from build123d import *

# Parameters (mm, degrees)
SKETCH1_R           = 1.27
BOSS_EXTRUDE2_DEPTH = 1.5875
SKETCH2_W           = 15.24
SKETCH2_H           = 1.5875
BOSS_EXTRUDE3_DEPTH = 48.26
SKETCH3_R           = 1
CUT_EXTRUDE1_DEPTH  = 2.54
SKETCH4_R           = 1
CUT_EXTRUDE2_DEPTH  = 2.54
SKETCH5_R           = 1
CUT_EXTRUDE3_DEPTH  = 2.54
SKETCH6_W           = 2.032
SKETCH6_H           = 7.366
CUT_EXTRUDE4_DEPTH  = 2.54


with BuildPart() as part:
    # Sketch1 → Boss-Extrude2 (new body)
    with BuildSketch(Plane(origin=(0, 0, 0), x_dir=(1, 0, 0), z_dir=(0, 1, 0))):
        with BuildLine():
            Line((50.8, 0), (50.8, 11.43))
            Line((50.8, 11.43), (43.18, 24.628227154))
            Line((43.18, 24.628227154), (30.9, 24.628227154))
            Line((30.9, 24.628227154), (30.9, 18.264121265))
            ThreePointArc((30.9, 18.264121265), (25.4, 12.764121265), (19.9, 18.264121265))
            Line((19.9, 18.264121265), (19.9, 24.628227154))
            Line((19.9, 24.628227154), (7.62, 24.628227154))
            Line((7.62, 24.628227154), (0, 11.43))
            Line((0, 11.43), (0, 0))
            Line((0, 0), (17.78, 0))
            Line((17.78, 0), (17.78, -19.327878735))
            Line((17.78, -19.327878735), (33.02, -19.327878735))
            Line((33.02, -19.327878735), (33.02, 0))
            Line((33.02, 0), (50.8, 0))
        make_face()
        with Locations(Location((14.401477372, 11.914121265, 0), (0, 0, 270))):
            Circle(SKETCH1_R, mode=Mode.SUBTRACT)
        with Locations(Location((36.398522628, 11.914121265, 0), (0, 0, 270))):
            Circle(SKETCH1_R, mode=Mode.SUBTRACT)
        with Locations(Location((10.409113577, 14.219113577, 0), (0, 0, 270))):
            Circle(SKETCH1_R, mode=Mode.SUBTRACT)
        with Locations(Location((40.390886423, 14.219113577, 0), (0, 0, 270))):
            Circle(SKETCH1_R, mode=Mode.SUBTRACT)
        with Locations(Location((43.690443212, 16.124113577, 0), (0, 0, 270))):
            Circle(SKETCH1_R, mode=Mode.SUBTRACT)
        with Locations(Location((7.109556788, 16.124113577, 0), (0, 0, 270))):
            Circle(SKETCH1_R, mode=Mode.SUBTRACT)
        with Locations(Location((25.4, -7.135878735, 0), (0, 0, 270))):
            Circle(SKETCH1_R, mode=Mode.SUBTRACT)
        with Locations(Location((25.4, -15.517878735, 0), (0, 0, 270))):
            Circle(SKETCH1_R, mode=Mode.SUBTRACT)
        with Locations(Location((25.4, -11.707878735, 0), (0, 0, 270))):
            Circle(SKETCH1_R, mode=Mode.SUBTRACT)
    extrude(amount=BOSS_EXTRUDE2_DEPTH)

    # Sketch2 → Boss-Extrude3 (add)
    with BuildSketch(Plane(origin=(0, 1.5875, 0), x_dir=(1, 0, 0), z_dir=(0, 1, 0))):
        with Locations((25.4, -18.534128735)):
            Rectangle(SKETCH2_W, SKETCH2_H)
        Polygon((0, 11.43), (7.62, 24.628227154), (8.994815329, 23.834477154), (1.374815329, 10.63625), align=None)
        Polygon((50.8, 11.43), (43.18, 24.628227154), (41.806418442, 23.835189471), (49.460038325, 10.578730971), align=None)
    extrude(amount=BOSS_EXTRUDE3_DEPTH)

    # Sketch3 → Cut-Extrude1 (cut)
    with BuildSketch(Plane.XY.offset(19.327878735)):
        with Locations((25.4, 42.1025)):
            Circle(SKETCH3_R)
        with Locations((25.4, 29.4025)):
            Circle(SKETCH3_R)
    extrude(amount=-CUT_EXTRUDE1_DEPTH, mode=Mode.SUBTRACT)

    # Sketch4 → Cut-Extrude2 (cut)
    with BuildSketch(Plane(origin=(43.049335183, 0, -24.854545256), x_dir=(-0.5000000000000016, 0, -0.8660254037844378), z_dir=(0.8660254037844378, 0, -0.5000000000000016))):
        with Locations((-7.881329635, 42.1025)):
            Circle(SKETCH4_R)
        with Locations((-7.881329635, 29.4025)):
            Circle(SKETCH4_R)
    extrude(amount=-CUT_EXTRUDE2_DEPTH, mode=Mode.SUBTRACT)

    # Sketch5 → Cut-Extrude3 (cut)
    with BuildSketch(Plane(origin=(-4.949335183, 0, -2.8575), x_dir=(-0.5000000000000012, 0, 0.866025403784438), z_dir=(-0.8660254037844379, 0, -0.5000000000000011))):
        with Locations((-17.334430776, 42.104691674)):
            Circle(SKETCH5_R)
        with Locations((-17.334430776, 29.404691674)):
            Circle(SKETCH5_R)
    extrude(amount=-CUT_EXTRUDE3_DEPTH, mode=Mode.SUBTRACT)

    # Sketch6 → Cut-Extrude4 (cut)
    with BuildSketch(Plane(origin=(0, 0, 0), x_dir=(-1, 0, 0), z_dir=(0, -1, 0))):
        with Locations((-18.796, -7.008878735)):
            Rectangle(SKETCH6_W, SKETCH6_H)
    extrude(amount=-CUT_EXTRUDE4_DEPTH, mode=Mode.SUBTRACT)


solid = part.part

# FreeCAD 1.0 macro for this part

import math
import FreeCAD as App
import Part
import Sketcher
from FreeCAD import Vector
Q = App.Units.Quantity


def add_polygon(sketch, points):
    """Adds a closed chain of lines whose ends are joined by coincident constraints."""
    first, n = sketch.GeometryCount, len(points)
    for a, b in zip(points, points[1:] + points[:1]):
        sketch.addGeometry(Part.LineSegment(App.Vector(*a, 0), App.Vector(*b, 0)), False)
    for i in range(n):
        sketch.addConstraint(Sketcher.Constraint("Coincident", first + i, 2, first + (i + 1) % n, 1))

doc = App.newDocument("Part")
params = doc.addObject("Spreadsheet::Sheet", "Params")
for row, (alias, value) in enumerate([
    ("sketch1_diameter", "0.1 in"),
    ("sketch1_width", "0.7 in"),
    ("sketch1_width2", "0.6 in"),
    ("sketch1_length", "0.6 in"),
    ("sketch1_height", "0.45 in"),
    ("pad1_length", "0.0625 in"),
    ("sketch2_width", "0.6 in"),
    ("sketch2_length", "0.6 in"),
    ("sketch2_height", "0.0625 in"),
    ("sketch2_length2", "0.0625 in"),
    ("pad2_length", "1.9 in"),
    ("pocket1_length", "0.1 in"),
    ("pocket2_length", "0.1 in"),
    ("pocket3_length", "0.1 in"),
    ("sketch6_width", "0.08 in"),
    ("sketch6_height", "0.29 in"),
    ("pocket4_length", "0.1 in"),
], start=1):
    params.set(f"A{row}", alias)
    params.set(f"B{row}", "=" + value)
    params.setAlias(f"B{row}", alias)

body = doc.addObject("PartDesign::Body", "Body")

sketch1 = body.newObject("Sketcher::SketchObject", "Sketch")
sketch1.AttachmentSupport = (doc.getObject("XZ_Plane"), [""])
sketch1.MapMode = "FlatFace"
sketch1.addGeometry([
    Part.LineSegment(Vector(50.8, 0, 0), Vector(50.8, -11.4, 0)),
    Part.LineSegment(Vector(50.8, -11.4, 0), Vector(43.2, -24.6, 0)),
    Part.LineSegment(Vector(43.2, -24.6, 0), Vector(30.9, -24.6, 0)),
    Part.LineSegment(Vector(30.9, -24.6, 0), Vector(30.9, -18.3, 0)),
    Part.ArcOfCircle(Part.Circle(Vector(25.4, -18.3, 0), Vector(0, 0, 1), 5.5), math.radians(0), math.radians(180)),
    Part.LineSegment(Vector(19.9, -18.3, 0), Vector(19.9, -24.6, 0)),
    Part.LineSegment(Vector(19.9, -24.6, 0), Vector(7.6, -24.6, 0)),
    Part.LineSegment(Vector(7.6, -24.6, 0), Vector(0, -11.4, 0)),
    Part.LineSegment(Vector(0, -11.4, 0), Vector(0, 0, 0)),
    Part.LineSegment(Vector(0, 0, 0), Vector(17.8, 0, 0)),
    Part.LineSegment(Vector(17.8, 0, 0), Vector(17.8, 19.3, 0)),
    Part.LineSegment(Vector(17.8, 19.3, 0), Vector(33, 19.3, 0)),
    Part.LineSegment(Vector(33, 19.3, 0), Vector(33, 0, 0)),
    Part.LineSegment(Vector(33, 0, 0), Vector(50.8, 0, 0)),
    Part.Circle(Vector(25.4, 15.5, 0), Vector(0, 0, 1), 1.3),
    Part.Circle(Vector(25.4, 11.7, 0), Vector(0, 0, 1), 1.3),
    Part.Circle(Vector(25.4, 7.1, 0), Vector(0, 0, 1), 1.3),
    Part.Circle(Vector(14.4, -11.9, 0), Vector(0, 0, 1), 1.3),
    Part.Circle(Vector(10.4, -14.2, 0), Vector(0, 0, 1), 1.3),
    Part.Circle(Vector(7.1, -16.1, 0), Vector(0, 0, 1), 1.3),
    Part.Circle(Vector(36.4, -11.9, 0), Vector(0, 0, 1), 1.3),
    Part.Circle(Vector(40.4, -14.2, 0), Vector(0, 0, 1), 1.3),
    Part.Circle(Vector(43.7, -16.1, 0), Vector(0, 0, 1), 1.3),
], False)
sketch1.addConstraint([
    Sketcher.Constraint("Coincident", 0, 2, 1, 1),
    Sketcher.Constraint("Coincident", 1, 2, 2, 1),
    Sketcher.Constraint("Coincident", 2, 2, 3, 1),
    Sketcher.Constraint("Tangent", 3, 2, 4, 1),
    Sketcher.Constraint("Tangent", 4, 2, 5, 1),
    Sketcher.Constraint("Coincident", 5, 2, 6, 1),
    Sketcher.Constraint("Coincident", 6, 2, 7, 1),
    Sketcher.Constraint("Coincident", 7, 2, 8, 1),
    Sketcher.Constraint("Coincident", 8, 2, 9, 1),
    Sketcher.Constraint("Coincident", 9, 2, 10, 1),
    Sketcher.Constraint("Coincident", 10, 2, 11, 1),
    Sketcher.Constraint("Coincident", 11, 2, 12, 1),
    Sketcher.Constraint("Coincident", 12, 2, 13, 1),
    Sketcher.Constraint("Coincident", 13, 2, 0, 1),
    Sketcher.Constraint("Vertical", 0),
    Sketcher.Constraint("Horizontal", 2),
    Sketcher.Constraint("Vertical", 3),
    Sketcher.Constraint("Vertical", 5),
    Sketcher.Constraint("Horizontal", 6),
    Sketcher.Constraint("Vertical", 8),
    Sketcher.Constraint("Horizontal", 9),
    Sketcher.Constraint("Vertical", 10),
    Sketcher.Constraint("Horizontal", 11),
    Sketcher.Constraint("Vertical", 12),
    Sketcher.Constraint("Horizontal", 13),
    Sketcher.Constraint("Coincident", 8, 2, -1, 1),
    Sketcher.Constraint("Equal", 14, 15),
    Sketcher.Constraint("Equal", 15, 16),
    Sketcher.Constraint("Equal", 16, 17),
    Sketcher.Constraint("Equal", 17, 18),
    Sketcher.Constraint("Equal", 18, 19),
    Sketcher.Constraint("Equal", 19, 20),
    Sketcher.Constraint("Equal", 20, 21),
    Sketcher.Constraint("Equal", 21, 22),
    Sketcher.Constraint("PointOnObject", 12, 2, -1),
    Sketcher.Constraint("Horizontal", 17, 3, 20, 3),
    Sketcher.Constraint("Horizontal", 18, 3, 21, 3),
    Sketcher.Constraint("Horizontal", 19, 3, 22, 3),
    Sketcher.Constraint("Horizontal", 2, 2, 5, 2),
    Sketcher.Constraint("Horizontal", 0, 2, 7, 2),
    Sketcher.Constraint("Vertical", 4, 3, 14, 3),
    Sketcher.Constraint("Vertical", 14, 3, 15, 3),
    Sketcher.Constraint("Vertical", 15, 3, 16, 3),
    Sketcher.Constraint("Equal", 2, 6),
    Sketcher.Constraint("Equal", 9, 13),
    Sketcher.Constraint("Equal", 1, 7),
    Sketcher.Constraint("Diameter", 14, Q("0.1 in")),
    Sketcher.Constraint("DistanceX", 9, 1, 9, 2, Q("0.7 in")),
    Sketcher.Constraint("DistanceX", 11, 1, 11, 2, Q("0.6 in")),
    Sketcher.Constraint("Angle", 1, Q("-120 deg")),
    Sketcher.Constraint("DistanceY", 4, 3, 16, 3, Q("1 in")),
    Sketcher.Constraint("Distance", 1, Q("0.6 in")),
    Sketcher.Constraint("DistanceY", 0, 2, 0, 1, Q("0.45 in")),
    Sketcher.Constraint("DistanceY", 15, 3, 10, 2, Q("0.3 in")),
    Sketcher.Constraint("Radius", 4, Q("5.5 mm")),
    Sketcher.Constraint("DistanceY", 4, 3, 14, 3, Q("1.33 in")),
    Sketcher.Constraint("DistanceY", 15, 3, 14, 3, Q("0.15 in")),
    Sketcher.Constraint("DistanceY", 4, 3, 17, 3, Q("0.25 in")),
    Sketcher.Constraint("DistanceY", 19, 3, 18, 3, Q("0.075 in")),
    Sketcher.Constraint("DistanceY", 10, 1, 10, 2, Q("19.327879 mm")),
    Sketcher.Constraint("DistanceX", 19, 3, 17, 3, Q("7.291921 mm")),
    Sketcher.Constraint("DistanceX", 18, 3, 20, 3, Q("25.989409 mm")),
    Sketcher.Constraint("DistanceX", 17, 3, 21, 3, Q("25.989409 mm")),
    Sketcher.Constraint("DistanceX", 20, 3, 22, 3, Q("7.291921 mm")),
    Sketcher.Constraint("DistanceX", -1, 1, 17, 3, Q("14.401477 mm")),
    Sketcher.Constraint("DistanceX", -1, 1, 18, 3, Q("10.409114 mm")),
    Sketcher.Constraint("DistanceY", 18, 3, -1, 1, Q("14.219114 mm")),
])
sketch1.setExpression("Constraints[46]", "Params.sketch1_diameter")
sketch1.setExpression("Constraints[47]", "Params.sketch1_width")
sketch1.setExpression("Constraints[48]", "Params.sketch1_width2")
sketch1.setExpression("Constraints[51]", "Params.sketch1_length")
sketch1.setExpression("Constraints[52]", "Params.sketch1_height")
pad1 = body.newObject("PartDesign::Pad", "Pad")
pad1.Profile = sketch1
pad1.setExpression("Length", "Params.pad1_length")
pad1.Reversed = True

sketch2 = body.newObject("Sketcher::SketchObject", "Sketch001")
sketch2.AttachmentSupport = (doc.getObject("XZ_Plane"), [""])
sketch2.MapMode = "FlatFace"
sketch2.AttachmentOffset = App.Placement(Vector(0, 0, -0.0625 * 25.4), App.Rotation())
add_polygon(sketch2, [(17.8, 17.7), (17.8, 19.3), (33, 19.3), (33, 17.7)])
add_polygon(sketch2, [(7.6, -24.6), (0, -11.4), (1.4, -10.6), (9, -23.8)])
add_polygon(sketch2, [(50.8, -11.4), (43.2, -24.6), (41.8, -23.8), (49.5, -10.6)])
sketch2.addConstraint([
    Sketcher.Constraint("Vertical", 0),
    Sketcher.Constraint("Horizontal", 1),
    Sketcher.Constraint("Vertical", 2),
    Sketcher.Constraint("Horizontal", 3),
    Sketcher.Constraint("PointOnObject", 4, 2, -2),
    Sketcher.Constraint("Perpendicular", 4, 5),
    Sketcher.Constraint("Perpendicular", 5, 6),
    Sketcher.Constraint("Perpendicular", 6, 7),
    Sketcher.Constraint("Perpendicular", 8, 9),
    Sketcher.Constraint("Perpendicular", 9, 10),
    Sketcher.Constraint("Horizontal", 7, 2, 8, 2),
    Sketcher.Constraint("Horizontal", 4, 2, 11, 2),
    Sketcher.Constraint("Equal", 6, 8),
    Sketcher.Constraint("Equal", 7, 11),
    Sketcher.Constraint("DistanceX", 1, 1, 1, 2, Q("0.6 in")),
    Sketcher.Constraint("DistanceX", -1, 1, 11, 2, Q("2 in")),
    Sketcher.Constraint("Angle", 4, Q("120 deg")),
    Sketcher.Constraint("Distance", 4, Q("0.6 in")),
    Sketcher.Constraint("DistanceX", -1, 1, 0, 2, Q("0.7 in")),
    Sketcher.Constraint("DistanceY", 0, 1, 0, 2, Q("0.0625 in")),
    Sketcher.Constraint("DistanceY", 4, 2, -1, 1, Q("0.45 in")),
    Sketcher.Constraint("Distance", 5, Q("0.0625 in")),
    Sketcher.Constraint("Distance", 10, Q("15.30724 mm")),
    Sketcher.Constraint("DistanceY", -1, 1, 0, 2, Q("19.327879 mm")),
])
sketch2.setExpression("Constraints[26]", "Params.sketch2_width")
sketch2.setExpression("Constraints[29]", "Params.sketch2_length")
sketch2.setExpression("Constraints[31]", "Params.sketch2_height")
sketch2.setExpression("Constraints[33]", "Params.sketch2_length2")
pad2 = body.newObject("PartDesign::Pad", "Pad001")
pad2.Profile = sketch2
pad2.setExpression("Length", "Params.pad2_length")
pad2.Reversed = True

sketch3 = body.newObject("Sketcher::SketchObject", "Sketch002")
sketch3.AttachmentSupport = (doc.getObject("XY_Plane"), [""])
sketch3.MapMode = "FlatFace"
sketch3.AttachmentOffset = App.Placement(Vector(0, 0, 19.327879), App.Rotation())
sketch3.addGeometry([
    Part.Circle(Vector(25.4, 42.1, 0), Vector(0, 0, 1), 1),
    Part.Circle(Vector(25.4, 29.4, 0), Vector(0, 0, 1), 1),
], False)
sketch3.addConstraint([
    Sketcher.Constraint("Equal", 0, 1),
    Sketcher.Constraint("Vertical", 0, 3, 1, 3),
    Sketcher.Constraint("DistanceX", -1, 1, 0, 3, Q("1 in")),
    Sketcher.Constraint("DistanceY", 1, 3, 0, 3, Q("0.5 in")),
    Sketcher.Constraint("Diameter", 0, Q("2 mm")),
    Sketcher.Constraint("DistanceY", -1, 1, 0, 3, Q("42.1025 mm")),
])
pocket1 = body.newObject("PartDesign::Pocket", "Pocket")
pocket1.Profile = sketch3
pocket1.setExpression("Length", "Params.pocket1_length")

sketch4 = body.newObject("Sketcher::SketchObject", "Sketch003")
sketch4.Placement = App.Placement(Vector(43.049335, 0, -24.854545), App.Rotation(Vector(-0.5, 0, -0.866025404), Vector(0, 1, 0), Vector(0.866025404, 0, -0.5), "ZXY"))
sketch4.addGeometry([
    Part.Circle(Vector(-7.9, 42.1, 0), Vector(0, 0, 1), 1),
    Part.Circle(Vector(-7.9, 29.4, 0), Vector(0, 0, 1), 1),
], False)
sketch4.addConstraint([
    Sketcher.Constraint("Equal", 0, 1),
    Sketcher.Constraint("Vertical", 0, 3, 1, 3),
    Sketcher.Constraint("DistanceY", 1, 3, 0, 3, Q("0.5 in")),
    Sketcher.Constraint("Diameter", 0, Q("2 mm")),
    Sketcher.Constraint("DistanceY", -1, 1, 0, 3, Q("42.1025 mm")),
    Sketcher.Constraint("DistanceX", 0, 3, -1, 1, Q("7.88133 mm")),
])
pocket2 = body.newObject("PartDesign::Pocket", "Pocket001")
pocket2.Profile = sketch4
pocket2.setExpression("Length", "Params.pocket2_length")

sketch5 = body.newObject("Sketcher::SketchObject", "Sketch004")
sketch5.Placement = App.Placement(Vector(-4.949335, 0, -2.8575), App.Rotation(Vector(-0.5, 0, 0.866025404), Vector(0, 1, 0), Vector(-0.866025404, 0, -0.5), "ZXY"))
sketch5.addGeometry([
    Part.Circle(Vector(-17.3, 42.1, 0), Vector(0, 0, 1), 1),
    Part.Circle(Vector(-17.3, 29.4, 0), Vector(0, 0, 1), 1),
], False)
sketch5.addConstraint([
    Sketcher.Constraint("Equal", 0, 1),
    Sketcher.Constraint("Vertical", 0, 3, 1, 3),
    Sketcher.Constraint("DistanceY", 1, 3, 0, 3, Q("0.5 in")),
    Sketcher.Constraint("Diameter", 0, Q("2 mm")),
    Sketcher.Constraint("DistanceX", 0, 3, -1, 1, Q("17.334431 mm")),
    Sketcher.Constraint("DistanceY", -1, 1, 0, 3, Q("42.104692 mm")),
])
pocket3 = body.newObject("PartDesign::Pocket", "Pocket002")
pocket3.Profile = sketch5
pocket3.setExpression("Length", "Params.pocket3_length")

sketch6 = body.newObject("Sketcher::SketchObject", "Sketch005")
sketch6.AttachmentSupport = (doc.getObject("XZ_Plane"), [""])
sketch6.MapMode = "FlatFace"
add_polygon(sketch6, [(19.8, 3.3), (19.8, 10.7), (17.8, 10.7), (17.8, 3.3)])
sketch6.addConstraint([
    Sketcher.Constraint("Vertical", 0),
    Sketcher.Constraint("Horizontal", 1),
    Sketcher.Constraint("Vertical", 2),
    Sketcher.Constraint("Horizontal", 3),
    Sketcher.Constraint("DistanceX", 1, 2, 1, 1, Q("0.08 in")),
    Sketcher.Constraint("DistanceY", 0, 1, 0, 2, Q("0.29 in")),
    Sketcher.Constraint("DistanceX", -1, 1, 1, 2, Q("0.7 in")),
    Sketcher.Constraint("DistanceY", -1, 1, 0, 2, Q("10.691879 mm")),
])
sketch6.setExpression("Constraints[8]", "Params.sketch6_width")
sketch6.setExpression("Constraints[9]", "Params.sketch6_height")
pocket4 = body.newObject("PartDesign::Pocket", "Pocket003")
pocket4.Profile = sketch6
pocket4.setExpression("Length", "Params.pocket4_length")

doc.recompute()
